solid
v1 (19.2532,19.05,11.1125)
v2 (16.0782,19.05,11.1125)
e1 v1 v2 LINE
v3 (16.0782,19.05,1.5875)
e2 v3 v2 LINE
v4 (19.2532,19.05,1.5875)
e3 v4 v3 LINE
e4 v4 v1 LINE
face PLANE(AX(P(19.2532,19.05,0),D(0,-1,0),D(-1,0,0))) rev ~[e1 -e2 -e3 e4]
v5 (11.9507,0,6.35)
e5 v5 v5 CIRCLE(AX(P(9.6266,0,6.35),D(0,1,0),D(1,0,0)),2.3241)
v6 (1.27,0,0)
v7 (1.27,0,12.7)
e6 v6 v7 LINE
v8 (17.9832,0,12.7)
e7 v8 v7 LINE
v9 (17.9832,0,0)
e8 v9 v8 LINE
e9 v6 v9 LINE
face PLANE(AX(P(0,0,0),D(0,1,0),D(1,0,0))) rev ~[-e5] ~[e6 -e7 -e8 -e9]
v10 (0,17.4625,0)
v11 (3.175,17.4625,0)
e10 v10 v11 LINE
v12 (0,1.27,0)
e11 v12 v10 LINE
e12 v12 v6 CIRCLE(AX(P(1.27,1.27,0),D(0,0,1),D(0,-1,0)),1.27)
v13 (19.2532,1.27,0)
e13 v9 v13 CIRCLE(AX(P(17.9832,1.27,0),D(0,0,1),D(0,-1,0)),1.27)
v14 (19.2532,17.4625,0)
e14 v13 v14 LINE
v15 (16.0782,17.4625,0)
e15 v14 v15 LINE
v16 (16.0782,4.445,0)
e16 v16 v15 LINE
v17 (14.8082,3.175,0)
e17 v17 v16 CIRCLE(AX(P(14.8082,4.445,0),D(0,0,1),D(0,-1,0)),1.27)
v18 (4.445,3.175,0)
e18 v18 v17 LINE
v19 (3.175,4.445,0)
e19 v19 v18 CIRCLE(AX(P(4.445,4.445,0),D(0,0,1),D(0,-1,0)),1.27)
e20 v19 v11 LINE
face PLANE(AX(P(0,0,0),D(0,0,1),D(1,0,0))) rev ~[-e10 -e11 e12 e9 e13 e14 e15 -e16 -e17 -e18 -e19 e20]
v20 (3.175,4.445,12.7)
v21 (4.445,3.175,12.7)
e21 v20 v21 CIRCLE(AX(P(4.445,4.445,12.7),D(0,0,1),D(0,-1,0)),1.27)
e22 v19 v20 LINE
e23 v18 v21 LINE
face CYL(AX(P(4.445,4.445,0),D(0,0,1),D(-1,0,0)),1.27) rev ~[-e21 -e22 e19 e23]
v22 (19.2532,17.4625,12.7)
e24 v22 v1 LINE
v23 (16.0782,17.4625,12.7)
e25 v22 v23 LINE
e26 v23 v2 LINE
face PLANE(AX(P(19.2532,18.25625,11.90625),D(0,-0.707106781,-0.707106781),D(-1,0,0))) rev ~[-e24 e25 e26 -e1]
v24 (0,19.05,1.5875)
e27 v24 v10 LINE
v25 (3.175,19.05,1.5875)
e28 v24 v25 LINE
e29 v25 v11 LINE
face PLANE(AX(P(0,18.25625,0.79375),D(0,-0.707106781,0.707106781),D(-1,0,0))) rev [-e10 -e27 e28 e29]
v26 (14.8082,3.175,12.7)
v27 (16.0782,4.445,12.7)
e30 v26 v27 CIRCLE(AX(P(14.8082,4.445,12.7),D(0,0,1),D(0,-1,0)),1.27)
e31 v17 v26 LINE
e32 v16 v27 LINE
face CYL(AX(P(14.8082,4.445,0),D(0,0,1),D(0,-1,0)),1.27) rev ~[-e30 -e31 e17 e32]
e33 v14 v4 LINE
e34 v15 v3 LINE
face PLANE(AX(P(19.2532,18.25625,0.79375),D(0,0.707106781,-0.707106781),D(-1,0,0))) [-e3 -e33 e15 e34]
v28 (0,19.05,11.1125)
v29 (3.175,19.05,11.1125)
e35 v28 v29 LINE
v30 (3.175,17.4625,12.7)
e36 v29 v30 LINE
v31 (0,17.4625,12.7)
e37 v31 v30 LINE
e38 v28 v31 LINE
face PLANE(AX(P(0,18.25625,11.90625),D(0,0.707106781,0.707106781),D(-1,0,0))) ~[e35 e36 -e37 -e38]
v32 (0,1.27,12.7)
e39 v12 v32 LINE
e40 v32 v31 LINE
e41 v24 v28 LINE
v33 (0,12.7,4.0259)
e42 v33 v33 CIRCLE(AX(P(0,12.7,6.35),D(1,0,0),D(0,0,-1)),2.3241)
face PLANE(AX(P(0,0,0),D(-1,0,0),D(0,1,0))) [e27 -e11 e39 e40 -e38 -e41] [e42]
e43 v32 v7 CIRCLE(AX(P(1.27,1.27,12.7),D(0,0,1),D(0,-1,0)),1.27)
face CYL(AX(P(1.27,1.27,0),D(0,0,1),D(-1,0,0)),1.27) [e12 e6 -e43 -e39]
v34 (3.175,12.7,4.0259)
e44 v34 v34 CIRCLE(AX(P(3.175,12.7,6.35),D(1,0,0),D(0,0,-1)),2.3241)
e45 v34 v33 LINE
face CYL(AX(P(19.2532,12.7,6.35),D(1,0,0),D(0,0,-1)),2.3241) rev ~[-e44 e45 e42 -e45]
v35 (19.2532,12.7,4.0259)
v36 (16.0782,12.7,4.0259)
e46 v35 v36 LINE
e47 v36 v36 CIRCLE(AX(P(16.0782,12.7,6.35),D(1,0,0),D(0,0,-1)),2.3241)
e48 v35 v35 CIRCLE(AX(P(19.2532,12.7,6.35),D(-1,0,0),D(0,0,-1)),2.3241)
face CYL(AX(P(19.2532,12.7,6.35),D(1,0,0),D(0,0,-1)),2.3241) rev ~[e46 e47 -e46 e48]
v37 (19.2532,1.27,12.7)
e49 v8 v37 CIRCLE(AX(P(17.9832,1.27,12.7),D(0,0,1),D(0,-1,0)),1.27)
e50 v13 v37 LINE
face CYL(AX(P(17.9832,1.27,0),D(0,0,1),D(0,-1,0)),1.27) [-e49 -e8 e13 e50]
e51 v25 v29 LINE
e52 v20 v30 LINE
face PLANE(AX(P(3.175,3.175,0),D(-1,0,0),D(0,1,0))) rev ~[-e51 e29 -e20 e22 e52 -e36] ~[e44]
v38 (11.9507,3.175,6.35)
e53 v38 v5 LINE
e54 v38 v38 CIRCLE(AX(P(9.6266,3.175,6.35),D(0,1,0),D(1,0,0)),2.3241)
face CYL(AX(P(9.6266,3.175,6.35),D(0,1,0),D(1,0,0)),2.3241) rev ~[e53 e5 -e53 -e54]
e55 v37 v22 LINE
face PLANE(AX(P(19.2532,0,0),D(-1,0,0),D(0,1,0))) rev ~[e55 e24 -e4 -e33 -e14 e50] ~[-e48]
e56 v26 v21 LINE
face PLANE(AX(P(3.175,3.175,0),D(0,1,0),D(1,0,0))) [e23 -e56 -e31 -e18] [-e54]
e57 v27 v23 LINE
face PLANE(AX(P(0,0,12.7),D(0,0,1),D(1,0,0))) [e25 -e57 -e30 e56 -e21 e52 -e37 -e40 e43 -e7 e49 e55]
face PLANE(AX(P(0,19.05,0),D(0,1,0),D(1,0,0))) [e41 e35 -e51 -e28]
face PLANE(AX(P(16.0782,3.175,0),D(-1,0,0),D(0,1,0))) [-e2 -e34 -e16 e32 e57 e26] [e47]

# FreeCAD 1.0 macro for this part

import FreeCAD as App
import Part
import Sketcher
Q = App.Units.Quantity


def edges_at(feature, points):
    """Names of the edges that pass closest to the given points."""
    edges = feature.Shape.Edges
    near = lambda p: min(range(len(edges)), key=lambda i: edges[i].distToShape(Part.Vertex(*p))[0])
    return sorted({f"Edge{near(p) + 1}" for p in points})


def add_polygon(sketch, points):
    """Adds a closed chain of lines whose ends are joined by coincident constraints."""
    first, n = sketch.GeometryCount, len(points)
    for a, b in zip(points, points[1:] + points[:1]):
        sketch.addGeometry(Part.LineSegment(App.Vector(*a, 0), App.Vector(*b, 0)), False)
    for i in range(n):
        sketch.addConstraint(Sketcher.Constraint("Coincident", first + i, 2, first + (i + 1) % n, 1))

doc = App.newDocument("Part")
body = doc.addObject("PartDesign::Body", "Body")

sketch1 = doc.addObject("Sketcher::SketchObject", "Sketch")
body.addObject(sketch1)
sketch1.AttachmentSupport = (doc.XY_Plane, [""])
sketch1.MapMode = "FlatFace"
add_polygon(sketch1, [(0, 19.05), (0, 0), (19.2532, 0), (19.2532, 19.05), (16.0782, 19.05), (16.0782, 3.175), (3.175, 3.175), (3.175, 19.05)])
sketch1.addConstraint(Sketcher.Constraint("Vertical", 0))
sketch1.addConstraint(Sketcher.Constraint("Horizontal", 1))
sketch1.addConstraint(Sketcher.Constraint("Vertical", 2))
sketch1.addConstraint(Sketcher.Constraint("Horizontal", 3))
sketch1.addConstraint(Sketcher.Constraint("Vertical", 4))
sketch1.addConstraint(Sketcher.Constraint("Horizontal", 5))
sketch1.addConstraint(Sketcher.Constraint("Vertical", 6))
sketch1.addConstraint(Sketcher.Constraint("Horizontal", 7))
sketch1.addConstraint(Sketcher.Constraint("Coincident", 0, 2, -1, 1))
sketch1.addConstraint(Sketcher.Constraint("Horizontal", 3, 2, 6, 2))
sketch1.addConstraint(Sketcher.Constraint("Equal", 3, 7))
sketch1.addConstraint(Sketcher.Constraint("DistanceY", 0, 2, 0, 1, Q("0.75 in")))
sketch1.addConstraint(Sketcher.Constraint("DistanceX", 3, 2, 3, 1, Q("0.125 in")))
sketch1.addConstraint(Sketcher.Constraint("DistanceY", -1, 1, 4, 2, Q("0.125 in")))
sketch1.addConstraint(Sketcher.Constraint("DistanceX", 1, 1, 1, 2, Q("0.758 in")))
pad1 = doc.addObject("PartDesign::Pad", "Pad")
body.addObject(pad1)
pad1.Profile = sketch1
pad1.Length = Q("0.5 in")

sketch2 = doc.addObject("Sketcher::SketchObject", "Sketch001")
body.addObject(sketch2)
sketch2.AttachmentSupport = (doc.XZ_Plane, [""])
sketch2.MapMode = "FlatFace"
sketch2.AttachmentOffset = App.Placement(App.Vector(0, 0, -0.125 * 25.4), App.Rotation())
sketch2.addGeometry(Part.Circle(App.Vector(9.6266, 6.35, 0), App.Vector(0, 0, 1), 2.3241), False)
sketch2.addConstraint(Sketcher.Constraint("Diameter", 0, Q("0.183 in")))
sketch2.addConstraint(Sketcher.Constraint("DistanceY", -1, 1, 0, 3, Q("0.25 in")))
sketch2.addConstraint(Sketcher.Constraint("DistanceX", -1, 1, 0, 3, Q("0.379 in")))
pocket1 = doc.addObject("PartDesign::Pocket", "Pocket")
body.addObject(pocket1)
pocket1.Profile = sketch2
pocket1.Length = Q("0.5 in")
pocket1.Reversed = True
doc.recompute()

chamfer = doc.addObject("PartDesign::Chamfer", "Chamfer")
body.addObject(chamfer)
chamfer.Base = (pocket1, edges_at(pocket1, [
    (1.587, 19.05, 0),
    (1.587, 19.05, 12.7),
    (17.666, 19.05, 12.7),
    (17.666, 19.05, 0),
]))
chamfer.Size = Q("0.0625 in")

sketch3 = doc.addObject("Sketcher::SketchObject", "Sketch002")
body.addObject(sketch3)
sketch3.AttachmentSupport = (doc.YZ_Plane, [""])
sketch3.MapMode = "FlatFace"
sketch3.AttachmentOffset = App.Placement(App.Vector(0, 0, 0.758 * 25.4), App.Rotation())
sketch3.addGeometry(Part.Circle(App.Vector(12.7, 6.35, 0), App.Vector(0, 0, 1), 2.3241), False)
sketch3.addConstraint(Sketcher.Constraint("Diameter", 0, Q("0.183 in")))
sketch3.addConstraint(Sketcher.Constraint("DistanceX", -1, 1, 0, 3, Q("0.5 in")))
sketch3.addConstraint(Sketcher.Constraint("DistanceY", -1, 1, 0, 3, Q("0.25 in")))
pocket2 = doc.addObject("PartDesign::Pocket", "Pocket001")
body.addObject(pocket2)
pocket2.Profile = sketch3
pocket2.Type = "ThroughAll"
doc.recompute()

fillet = doc.addObject("PartDesign::Fillet", "Fillet")
body.addObject(fillet)
fillet.Base = (pocket2, edges_at(pocket2, [
    (3.175, 3.175, 6.35),
    (16.078, 3.175, 6.35),
    (19.253, 0, 6.35),
    (0, 0, 6.35),
]))
fillet.Radius = Q("0.05 in")

doc.recompute()
